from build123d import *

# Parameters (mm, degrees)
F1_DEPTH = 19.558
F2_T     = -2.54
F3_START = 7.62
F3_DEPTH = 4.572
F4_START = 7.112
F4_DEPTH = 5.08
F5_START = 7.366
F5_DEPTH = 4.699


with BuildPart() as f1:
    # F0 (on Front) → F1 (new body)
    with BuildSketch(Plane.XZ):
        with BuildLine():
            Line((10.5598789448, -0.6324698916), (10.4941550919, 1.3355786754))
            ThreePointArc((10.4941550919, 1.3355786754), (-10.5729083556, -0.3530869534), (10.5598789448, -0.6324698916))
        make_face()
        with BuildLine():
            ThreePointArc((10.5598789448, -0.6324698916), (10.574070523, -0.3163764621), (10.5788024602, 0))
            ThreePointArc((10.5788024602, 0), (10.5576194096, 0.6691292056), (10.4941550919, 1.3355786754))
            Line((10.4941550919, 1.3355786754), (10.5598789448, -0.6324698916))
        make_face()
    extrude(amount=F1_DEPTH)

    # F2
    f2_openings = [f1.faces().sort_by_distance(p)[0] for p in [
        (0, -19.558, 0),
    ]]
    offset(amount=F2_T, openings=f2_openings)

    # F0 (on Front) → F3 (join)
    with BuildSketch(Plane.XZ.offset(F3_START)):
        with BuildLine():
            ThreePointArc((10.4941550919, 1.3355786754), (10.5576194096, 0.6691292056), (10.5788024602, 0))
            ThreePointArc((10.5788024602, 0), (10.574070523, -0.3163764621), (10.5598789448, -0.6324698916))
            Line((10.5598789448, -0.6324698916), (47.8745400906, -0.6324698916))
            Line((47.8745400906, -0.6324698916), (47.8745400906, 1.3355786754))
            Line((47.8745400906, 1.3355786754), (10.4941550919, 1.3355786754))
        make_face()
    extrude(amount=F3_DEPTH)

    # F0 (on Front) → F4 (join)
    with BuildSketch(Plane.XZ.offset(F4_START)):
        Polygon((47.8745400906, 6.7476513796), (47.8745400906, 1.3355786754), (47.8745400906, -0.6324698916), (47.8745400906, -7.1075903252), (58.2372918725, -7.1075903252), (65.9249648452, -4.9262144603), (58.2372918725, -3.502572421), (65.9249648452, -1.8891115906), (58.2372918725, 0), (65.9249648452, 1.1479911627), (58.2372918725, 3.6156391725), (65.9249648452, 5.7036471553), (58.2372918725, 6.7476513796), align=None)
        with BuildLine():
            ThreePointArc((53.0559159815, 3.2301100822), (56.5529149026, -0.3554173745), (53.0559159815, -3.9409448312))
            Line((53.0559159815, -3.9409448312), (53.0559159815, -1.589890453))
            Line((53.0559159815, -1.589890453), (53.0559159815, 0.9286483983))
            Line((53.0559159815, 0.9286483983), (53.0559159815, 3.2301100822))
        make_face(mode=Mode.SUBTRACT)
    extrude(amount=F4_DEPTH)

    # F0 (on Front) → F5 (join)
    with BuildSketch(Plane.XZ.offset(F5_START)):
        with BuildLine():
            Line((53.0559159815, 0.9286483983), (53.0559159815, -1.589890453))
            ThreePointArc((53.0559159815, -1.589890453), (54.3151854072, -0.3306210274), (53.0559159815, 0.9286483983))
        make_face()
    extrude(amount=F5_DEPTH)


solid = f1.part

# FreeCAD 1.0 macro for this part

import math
import FreeCAD as App
import Part
import Sketcher
from FreeCAD import Vector
Q = App.Units.Quantity


def faces_at(feature, points):
    """Names of the faces that lie closest to the given points."""
    faces = feature.Shape.Faces
    near = lambda p: min(range(len(faces)), key=lambda i: faces[i].distToShape(Part.Vertex(*p))[0])
    return sorted({f"Face{near(p) + 1}" for p in points})

doc = App.newDocument("Part")
params = doc.addObject("Spreadsheet::Sheet", "Params")
for row, (alias, value) in enumerate([
    ("pad1_length", "0.77 in"),
    ("thickness_wall", "0.1 in"),
    ("pad2_length", "0.18 in"),
    ("pad3_length", "0.2 in"),
    ("pad4_length", "0.185 in"),
], start=1):
    params.set(f"A{row}", alias)
    params.set(f"B{row}", "=" + value)
    params.setAlias(f"B{row}", alias)

body = doc.addObject("PartDesign::Body", "Body")

sketch1 = body.newObject("Sketcher::SketchObject", "Sketch")
sketch1.AttachmentSupport = (doc.getObject("XZ_Plane"), [""])
sketch1.MapMode = "FlatFace"
sketch1.addGeometry([
    Part.ArcOfCircle(Part.Circle(Vector(0, 0, 0), Vector(0, 0, 1), 10.6), math.radians(7), math.radians(357)),
    Part.ArcOfCircle(Part.Circle(Vector(0, 0, 0), Vector(0, 0, 1), 10.6), math.radians(-3.43), math.radians(0)),
    Part.ArcOfCircle(Part.Circle(Vector(0, 0, 0), Vector(0, 0, 1), 10.6), math.radians(0), math.radians(7.25)),
], False)
sketch1.addConstraint([
    Sketcher.Constraint("Tangent", 0, 2, 1, 1),
    Sketcher.Constraint("Tangent", 1, 2, 2, 1),
    Sketcher.Constraint("Tangent", 2, 2, 0, 1),
    Sketcher.Constraint("Coincident", 0, 3, -1, 1),
    Sketcher.Constraint("PointOnObject", 1, 2, -1),
    Sketcher.Constraint("Radius", 0, Q("10.578802 mm")),
    Sketcher.Constraint("DistanceX", -1, 1, 0, 2, Q("10.559879 mm")),
    Sketcher.Constraint("DistanceY", -1, 1, 2, 2, Q("1.335579 mm")),
])
pad1 = body.newObject("PartDesign::Pad", "Pad")
pad1.Profile = sketch1
pad1.setExpression("Length", "Params.pad1_length")
doc.recompute()

thickness = body.newObject("PartDesign::Thickness", "Thickness")
thickness.Base = (pad1, faces_at(pad1, [(0, -19.558, 0)]))
thickness.setExpression("Value", "Params.thickness_wall")
thickness.Reversed = True
thickness.Join = "Arc"

sketch2 = body.newObject("Sketcher::SketchObject", "Sketch001")
sketch2.AttachmentSupport = (doc.getObject("XZ_Plane"), [""])
sketch2.MapMode = "FlatFace"
sketch2.AttachmentOffset = App.Placement(Vector(0, 0, 0.3 * 25.4), App.Rotation())
sketch2.addGeometry([
    Part.ArcOfCircle(Part.Circle(Vector(0, 0, 0), Vector(0, 0, 1), 10.6), math.radians(0), math.radians(7.25)),
    Part.ArcOfCircle(Part.Circle(Vector(0, 0, 0), Vector(0, 0, 1), 10.6), math.radians(-3.43), math.radians(0)),
    Part.LineSegment(Vector(10.6, -0.6, 0), Vector(47.9, -0.6, 0)),
    Part.LineSegment(Vector(47.9, -0.6, 0), Vector(47.9, 1.3, 0)),
    Part.LineSegment(Vector(47.9, 1.3, 0), Vector(10.5, 1.3, 0)),
], False)
sketch2.addConstraint([
    Sketcher.Constraint("Tangent", 0, 1, 1, 2),
    Sketcher.Constraint("Coincident", 1, 1, 2, 1),
    Sketcher.Constraint("Coincident", 2, 2, 3, 1),
    Sketcher.Constraint("Coincident", 3, 2, 4, 1),
    Sketcher.Constraint("Coincident", 4, 2, 0, 2),
    Sketcher.Constraint("Horizontal", 2),
    Sketcher.Constraint("Vertical", 3),
    Sketcher.Constraint("Horizontal", 4),
    Sketcher.Constraint("Coincident", 0, 3, -1, 1),
    Sketcher.Constraint("Equal", 0, 1),
    Sketcher.Constraint("PointOnObject", 0, 1, -1),
    Sketcher.Constraint("Radius", 0, Q("10.578802 mm")),
    Sketcher.Constraint("DistanceX", 2, 1, 2, 2, Q("37.314661 mm")),
    Sketcher.Constraint("DistanceY", 3, 1, 3, 2, Q("1.968049 mm")),
    Sketcher.Constraint("DistanceX", 4, 2, 4, 1, Q("37.380385 mm")),
])
pad2 = body.newObject("PartDesign::Pad", "Pad001")
pad2.Profile = sketch2
pad2.setExpression("Length", "Params.pad2_length")

sketch3 = body.newObject("Sketcher::SketchObject", "Sketch002")
sketch3.AttachmentSupport = (doc.getObject("XZ_Plane"), [""])
sketch3.MapMode = "FlatFace"
sketch3.AttachmentOffset = App.Placement(Vector(0, 0, 0.28 * 25.4), App.Rotation())
sketch3.addGeometry([
    Part.LineSegment(Vector(47.9, 6.7, 0), Vector(47.9, -7.1, 0)),
    Part.LineSegment(Vector(47.9, -7.1, 0), Vector(58.2, -7.1, 0)),
    Part.LineSegment(Vector(58.2, -7.1, 0), Vector(65.9, -4.9, 0)),
    Part.LineSegment(Vector(65.9, -4.9, 0), Vector(58.2, -3.5, 0)),
    Part.LineSegment(Vector(58.2, -3.5, 0), Vector(65.9, -1.9, 0)),
    Part.LineSegment(Vector(65.9, -1.9, 0), Vector(58.2, 0, 0)),
    Part.LineSegment(Vector(58.2, 0, 0), Vector(65.9, 1.1, 0)),
    Part.LineSegment(Vector(65.9, 1.1, 0), Vector(58.2, 3.6, 0)),
    Part.LineSegment(Vector(58.2, 3.6, 0), Vector(65.9, 5.7, 0)),
    Part.LineSegment(Vector(65.9, 5.7, 0), Vector(58.2, 6.7, 0)),
    Part.LineSegment(Vector(58.2, 6.7, 0), Vector(47.9, 6.7, 0)),
    Part.LineSegment(Vector(53.1, -3.9, 0), Vector(53.1, 3.2, 0)),
    Part.ArcOfCircle(Part.Circle(Vector(53, -0.4, 0), Vector(0, 0, 1), 3.6), math.radians(-89), math.radians(89)),
], False)
sketch3.addConstraint([
    Sketcher.Constraint("Coincident", 0, 2, 1, 1),
    Sketcher.Constraint("Coincident", 1, 2, 2, 1),
    Sketcher.Constraint("Coincident", 2, 2, 3, 1),
    Sketcher.Constraint("Coincident", 3, 2, 4, 1),
    Sketcher.Constraint("Coincident", 4, 2, 5, 1),
    Sketcher.Constraint("Coincident", 5, 2, 6, 1),
    Sketcher.Constraint("Coincident", 6, 2, 7, 1),
    Sketcher.Constraint("Coincident", 7, 2, 8, 1),
    Sketcher.Constraint("Coincident", 8, 2, 9, 1),
    Sketcher.Constraint("Coincident", 9, 2, 10, 1),
    Sketcher.Constraint("Coincident", 10, 2, 0, 1),
    Sketcher.Constraint("Coincident", 11, 1, 12, 1),
    Sketcher.Constraint("Coincident", 12, 2, 11, 2),
    Sketcher.Constraint("Vertical", 0),
    Sketcher.Constraint("Horizontal", 1),
    Sketcher.Constraint("Horizontal", 10),
    Sketcher.Constraint("Vertical", 11),
    Sketcher.Constraint("PointOnObject", 5, 2, -1),
    Sketcher.Constraint("Vertical", 1, 2, 3, 2),
    Sketcher.Constraint("Vertical", 2, 2, 4, 2),
    Sketcher.Constraint("Vertical", 3, 2, 5, 2),
    Sketcher.Constraint("Vertical", 4, 2, 6, 2),
    Sketcher.Constraint("Vertical", 5, 2, 7, 2),
    Sketcher.Constraint("Vertical", 6, 2, 8, 2),
    Sketcher.Constraint("Vertical", 7, 2, 9, 2),
    Sketcher.Constraint("Radius", 12, Q("3.586648 mm")),
    Sketcher.Constraint("DistanceX", 1, 1, 1, 2, Q("10.362752 mm")),
    Sketcher.Constraint("DistanceY", 0, 2, 0, 1, Q("13.855242 mm")),
    Sketcher.Constraint("Distance", 3, Q("7.81838 mm")),
    Sketcher.Constraint("Distance", 5, Q("7.916379 mm")),
    Sketcher.Constraint("Distance", 9, Q("7.758238 mm")),
    Sketcher.Constraint("DistanceY", 11, 1, 11, 2, Q("7.171055 mm")),
    Sketcher.Constraint("DistanceX", -1, 1, 0, 2, Q("47.87454 mm")),
    Sketcher.Constraint("DistanceY", 0, 2, -1, 1, Q("7.10759 mm")),
    Sketcher.Constraint("DistanceY", 4, 2, -1, 1, Q("1.889112 mm")),
    Sketcher.Constraint("DistanceY", -1, 1, 6, 2, Q("1.147991 mm")),
    Sketcher.Constraint("DistanceY", -1, 1, 7, 2, Q("3.615639 mm")),
    Sketcher.Constraint("DistanceY", -1, 1, 12, 2, Q("3.23011 mm")),
    Sketcher.Constraint("DistanceY", 3, 2, 4, 2, Q("1.613461 mm")),
    Sketcher.Constraint("DistanceX", -1, 1, 12, 3, Q("52.966267 mm")),
])
pad3 = body.newObject("PartDesign::Pad", "Pad002")
pad3.Profile = sketch3
pad3.setExpression("Length", "Params.pad3_length")

sketch4 = body.newObject("Sketcher::SketchObject", "Sketch003")
sketch4.AttachmentSupport = (doc.getObject("XZ_Plane"), [""])
sketch4.MapMode = "FlatFace"
sketch4.AttachmentOffset = App.Placement(Vector(0, 0, 0.29 * 25.4), App.Rotation())
sketch4.addGeometry([
    Part.LineSegment(Vector(53.1, 0.9, 0), Vector(53.1, -1.6, 0)),
    Part.ArcOfCircle(Part.Circle(Vector(53.1, -0.3, 0), Vector(0, 0, 1), 1.3), math.radians(-90), math.radians(90)),
], False)
sketch4.addConstraint([
    Sketcher.Constraint("Coincident", 0, 1, 1, 2),
    Sketcher.Constraint("Coincident", 1, 1, 0, 2),
    Sketcher.Constraint("Vertical", 0),
    Sketcher.Constraint("Vertical", 1, 3, 0, 1),
    Sketcher.Constraint("Radius", 1, Q("1.259269 mm")),
    Sketcher.Constraint("DistanceY", 1, 3, -1, 1, Q("0.330621 mm")),
    Sketcher.Constraint("DistanceX", -1, 1, 1, 3, Q("53.055916 mm")),
])
pad4 = body.newObject("PartDesign::Pad", "Pad003")
pad4.Profile = sketch4
pad4.setExpression("Length", "Params.pad4_length")

doc.recompute()
